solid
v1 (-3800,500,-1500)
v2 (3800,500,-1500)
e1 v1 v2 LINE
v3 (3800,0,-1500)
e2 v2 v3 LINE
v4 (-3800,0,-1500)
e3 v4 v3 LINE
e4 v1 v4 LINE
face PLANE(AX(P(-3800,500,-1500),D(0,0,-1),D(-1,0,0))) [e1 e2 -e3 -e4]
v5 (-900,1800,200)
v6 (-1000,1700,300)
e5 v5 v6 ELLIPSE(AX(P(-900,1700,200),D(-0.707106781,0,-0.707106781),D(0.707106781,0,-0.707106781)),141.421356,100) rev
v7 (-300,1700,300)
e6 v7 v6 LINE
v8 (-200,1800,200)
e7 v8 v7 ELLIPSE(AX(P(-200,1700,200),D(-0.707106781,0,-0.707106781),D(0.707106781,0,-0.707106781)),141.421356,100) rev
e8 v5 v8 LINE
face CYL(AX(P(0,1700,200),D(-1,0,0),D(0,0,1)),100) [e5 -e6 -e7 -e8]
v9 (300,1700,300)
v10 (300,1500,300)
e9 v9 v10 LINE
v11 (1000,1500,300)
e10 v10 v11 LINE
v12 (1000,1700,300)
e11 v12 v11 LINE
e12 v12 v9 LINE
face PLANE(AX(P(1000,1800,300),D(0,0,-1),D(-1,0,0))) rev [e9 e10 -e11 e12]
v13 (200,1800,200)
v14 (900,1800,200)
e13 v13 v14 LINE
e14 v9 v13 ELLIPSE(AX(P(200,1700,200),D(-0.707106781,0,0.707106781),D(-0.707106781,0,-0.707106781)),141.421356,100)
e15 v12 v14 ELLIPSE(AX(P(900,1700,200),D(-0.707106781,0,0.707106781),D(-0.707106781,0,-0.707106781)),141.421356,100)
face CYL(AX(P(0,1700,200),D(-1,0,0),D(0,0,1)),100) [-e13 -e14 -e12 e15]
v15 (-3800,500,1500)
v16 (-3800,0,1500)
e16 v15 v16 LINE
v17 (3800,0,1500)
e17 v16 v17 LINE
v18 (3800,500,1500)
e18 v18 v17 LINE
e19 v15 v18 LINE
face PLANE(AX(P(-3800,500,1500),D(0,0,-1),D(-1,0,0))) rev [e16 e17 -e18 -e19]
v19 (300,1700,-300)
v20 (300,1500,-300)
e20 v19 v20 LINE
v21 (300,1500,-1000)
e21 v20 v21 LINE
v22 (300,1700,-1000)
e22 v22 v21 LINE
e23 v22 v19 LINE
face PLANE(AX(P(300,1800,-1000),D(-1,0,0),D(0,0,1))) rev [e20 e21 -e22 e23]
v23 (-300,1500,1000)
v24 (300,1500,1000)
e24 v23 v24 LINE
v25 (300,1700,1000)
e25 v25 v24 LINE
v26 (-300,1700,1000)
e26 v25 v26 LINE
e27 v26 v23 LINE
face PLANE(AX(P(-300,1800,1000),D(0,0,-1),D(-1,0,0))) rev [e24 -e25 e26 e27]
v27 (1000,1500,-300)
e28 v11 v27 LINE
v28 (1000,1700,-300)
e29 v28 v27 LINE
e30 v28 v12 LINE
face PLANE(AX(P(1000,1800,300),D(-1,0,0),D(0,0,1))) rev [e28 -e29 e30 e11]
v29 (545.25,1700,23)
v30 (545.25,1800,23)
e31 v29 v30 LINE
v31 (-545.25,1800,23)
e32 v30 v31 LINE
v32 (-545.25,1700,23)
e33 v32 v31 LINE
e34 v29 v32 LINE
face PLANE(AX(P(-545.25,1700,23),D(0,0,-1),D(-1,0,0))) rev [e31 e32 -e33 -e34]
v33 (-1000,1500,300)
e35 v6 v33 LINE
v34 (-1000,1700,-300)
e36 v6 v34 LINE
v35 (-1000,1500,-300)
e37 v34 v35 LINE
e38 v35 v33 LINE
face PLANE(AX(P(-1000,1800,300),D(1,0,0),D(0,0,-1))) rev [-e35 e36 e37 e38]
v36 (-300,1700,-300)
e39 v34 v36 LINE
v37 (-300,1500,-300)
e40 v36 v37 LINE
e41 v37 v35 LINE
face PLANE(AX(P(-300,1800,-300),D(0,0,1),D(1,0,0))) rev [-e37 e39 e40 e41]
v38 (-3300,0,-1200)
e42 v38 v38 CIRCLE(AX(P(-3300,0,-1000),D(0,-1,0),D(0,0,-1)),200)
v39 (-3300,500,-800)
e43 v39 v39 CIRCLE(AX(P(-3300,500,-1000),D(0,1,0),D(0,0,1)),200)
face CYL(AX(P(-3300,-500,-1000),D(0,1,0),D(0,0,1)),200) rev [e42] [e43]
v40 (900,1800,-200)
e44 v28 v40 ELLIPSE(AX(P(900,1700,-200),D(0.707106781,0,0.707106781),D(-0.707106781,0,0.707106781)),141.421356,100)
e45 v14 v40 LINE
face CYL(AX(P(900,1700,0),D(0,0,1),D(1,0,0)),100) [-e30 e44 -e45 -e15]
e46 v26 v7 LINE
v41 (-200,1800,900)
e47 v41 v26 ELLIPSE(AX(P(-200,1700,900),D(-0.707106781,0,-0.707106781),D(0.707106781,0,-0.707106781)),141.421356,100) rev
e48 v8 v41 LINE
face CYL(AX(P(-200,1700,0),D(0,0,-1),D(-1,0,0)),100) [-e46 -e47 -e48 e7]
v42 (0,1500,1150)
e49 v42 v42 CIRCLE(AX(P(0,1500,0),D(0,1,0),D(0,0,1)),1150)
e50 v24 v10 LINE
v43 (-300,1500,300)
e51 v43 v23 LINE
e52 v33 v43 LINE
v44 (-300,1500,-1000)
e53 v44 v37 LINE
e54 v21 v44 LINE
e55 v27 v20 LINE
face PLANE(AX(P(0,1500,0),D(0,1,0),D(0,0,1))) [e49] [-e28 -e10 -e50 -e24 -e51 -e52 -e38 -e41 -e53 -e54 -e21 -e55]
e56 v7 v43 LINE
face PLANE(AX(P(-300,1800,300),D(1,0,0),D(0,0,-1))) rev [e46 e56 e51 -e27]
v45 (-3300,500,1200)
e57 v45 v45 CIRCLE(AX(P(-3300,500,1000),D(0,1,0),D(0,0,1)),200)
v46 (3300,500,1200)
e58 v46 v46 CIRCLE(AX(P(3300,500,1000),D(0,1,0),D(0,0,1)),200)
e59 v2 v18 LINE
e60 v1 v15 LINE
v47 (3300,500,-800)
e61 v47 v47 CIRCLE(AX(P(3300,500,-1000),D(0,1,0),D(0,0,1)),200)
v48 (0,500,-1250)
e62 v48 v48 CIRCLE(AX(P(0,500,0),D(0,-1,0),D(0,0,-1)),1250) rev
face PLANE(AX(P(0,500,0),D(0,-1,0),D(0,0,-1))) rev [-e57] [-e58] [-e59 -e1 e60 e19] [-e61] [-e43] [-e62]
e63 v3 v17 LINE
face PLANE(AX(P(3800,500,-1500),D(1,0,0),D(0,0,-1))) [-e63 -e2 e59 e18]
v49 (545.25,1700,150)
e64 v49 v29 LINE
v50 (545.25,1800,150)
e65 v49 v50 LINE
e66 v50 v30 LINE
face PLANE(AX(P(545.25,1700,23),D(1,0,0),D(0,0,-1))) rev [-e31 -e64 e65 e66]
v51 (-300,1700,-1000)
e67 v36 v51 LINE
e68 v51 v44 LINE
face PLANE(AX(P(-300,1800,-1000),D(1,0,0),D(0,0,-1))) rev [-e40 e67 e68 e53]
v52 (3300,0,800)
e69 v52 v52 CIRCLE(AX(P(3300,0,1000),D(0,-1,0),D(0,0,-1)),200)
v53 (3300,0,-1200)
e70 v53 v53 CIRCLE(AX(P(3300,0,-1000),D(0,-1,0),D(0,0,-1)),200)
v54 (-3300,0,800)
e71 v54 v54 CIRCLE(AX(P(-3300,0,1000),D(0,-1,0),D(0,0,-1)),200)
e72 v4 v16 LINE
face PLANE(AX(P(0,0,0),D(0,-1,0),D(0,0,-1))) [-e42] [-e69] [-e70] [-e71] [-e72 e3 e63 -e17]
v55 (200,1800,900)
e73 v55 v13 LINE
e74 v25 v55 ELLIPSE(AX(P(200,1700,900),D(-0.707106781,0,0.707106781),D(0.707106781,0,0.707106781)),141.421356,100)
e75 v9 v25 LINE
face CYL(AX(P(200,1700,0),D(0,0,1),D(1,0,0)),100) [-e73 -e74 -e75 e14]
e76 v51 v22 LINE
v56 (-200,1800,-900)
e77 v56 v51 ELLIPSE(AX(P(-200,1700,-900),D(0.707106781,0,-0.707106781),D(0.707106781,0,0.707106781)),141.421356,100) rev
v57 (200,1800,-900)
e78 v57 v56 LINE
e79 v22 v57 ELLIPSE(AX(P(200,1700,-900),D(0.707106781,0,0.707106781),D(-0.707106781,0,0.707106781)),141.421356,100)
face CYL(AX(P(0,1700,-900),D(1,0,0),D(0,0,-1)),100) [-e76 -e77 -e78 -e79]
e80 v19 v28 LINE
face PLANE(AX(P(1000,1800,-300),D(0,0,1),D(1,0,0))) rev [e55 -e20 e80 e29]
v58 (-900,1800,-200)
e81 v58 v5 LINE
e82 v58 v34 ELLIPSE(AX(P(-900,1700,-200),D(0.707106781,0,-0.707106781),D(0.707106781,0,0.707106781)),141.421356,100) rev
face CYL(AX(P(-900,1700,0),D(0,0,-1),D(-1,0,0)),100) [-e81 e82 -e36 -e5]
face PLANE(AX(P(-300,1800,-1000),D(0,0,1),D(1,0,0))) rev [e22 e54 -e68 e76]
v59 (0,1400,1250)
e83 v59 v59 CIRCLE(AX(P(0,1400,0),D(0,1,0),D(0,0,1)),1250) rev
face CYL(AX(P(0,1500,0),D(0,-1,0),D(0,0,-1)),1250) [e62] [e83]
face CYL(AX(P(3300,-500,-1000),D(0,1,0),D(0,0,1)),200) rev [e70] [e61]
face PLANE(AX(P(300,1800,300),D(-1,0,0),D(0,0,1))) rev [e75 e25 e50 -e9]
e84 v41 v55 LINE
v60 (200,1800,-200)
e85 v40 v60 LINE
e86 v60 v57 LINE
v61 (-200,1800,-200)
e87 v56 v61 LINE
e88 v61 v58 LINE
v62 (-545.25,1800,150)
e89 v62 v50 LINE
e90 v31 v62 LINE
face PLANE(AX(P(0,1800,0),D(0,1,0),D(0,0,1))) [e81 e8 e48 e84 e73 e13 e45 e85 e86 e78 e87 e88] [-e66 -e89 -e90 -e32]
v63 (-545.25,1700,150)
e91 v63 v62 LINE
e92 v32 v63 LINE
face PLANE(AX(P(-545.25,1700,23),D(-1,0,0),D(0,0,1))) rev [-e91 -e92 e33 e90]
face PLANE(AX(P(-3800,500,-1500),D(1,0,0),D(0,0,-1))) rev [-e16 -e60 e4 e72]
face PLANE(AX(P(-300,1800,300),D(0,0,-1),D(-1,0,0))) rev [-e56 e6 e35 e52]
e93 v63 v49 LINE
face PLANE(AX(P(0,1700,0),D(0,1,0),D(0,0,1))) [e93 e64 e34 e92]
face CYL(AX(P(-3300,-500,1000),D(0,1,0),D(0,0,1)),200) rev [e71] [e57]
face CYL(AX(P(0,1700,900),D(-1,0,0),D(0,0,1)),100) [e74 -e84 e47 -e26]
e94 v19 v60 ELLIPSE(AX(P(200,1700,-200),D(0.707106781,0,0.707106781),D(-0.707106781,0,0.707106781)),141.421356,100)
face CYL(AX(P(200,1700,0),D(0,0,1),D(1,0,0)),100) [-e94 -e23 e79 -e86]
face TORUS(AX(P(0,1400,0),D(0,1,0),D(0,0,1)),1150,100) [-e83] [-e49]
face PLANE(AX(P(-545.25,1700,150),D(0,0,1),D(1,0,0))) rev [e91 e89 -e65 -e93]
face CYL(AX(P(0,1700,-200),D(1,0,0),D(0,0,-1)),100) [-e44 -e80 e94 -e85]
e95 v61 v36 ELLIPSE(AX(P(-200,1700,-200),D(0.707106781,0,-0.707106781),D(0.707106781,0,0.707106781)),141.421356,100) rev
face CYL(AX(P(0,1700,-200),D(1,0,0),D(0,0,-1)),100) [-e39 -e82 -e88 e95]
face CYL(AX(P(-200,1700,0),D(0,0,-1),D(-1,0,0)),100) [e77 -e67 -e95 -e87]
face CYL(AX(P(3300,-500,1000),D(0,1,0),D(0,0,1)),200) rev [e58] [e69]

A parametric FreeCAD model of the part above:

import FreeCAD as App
import Part
import Sketcher


def edges_at(feature, points):
    """Names of the edges that pass closest to the given points."""
    edges = feature.Shape.Edges
    near = lambda p: min(range(len(edges)), key=lambda i: edges[i].distToShape(Part.Vertex(*p))[0])
    return sorted({f"Edge{near(p) + 1}" for p in points})

doc = App.newDocument("Part")
body = doc.addObject("PartDesign::Body", "Body")

sketch1 = doc.addObject("Sketcher::SketchObject", "Sketch")
body.addObject(sketch1)
sketch1.AttachmentSupport = (doc.XZ_Plane, [""])
sketch1.MapMode = "FlatFace"
sketch1.addGeometry(Part.LineSegment(App.Vector(-3800, -1500, 0), App.Vector(-3800, 1500, 0)), False)
sketch1.addGeometry(Part.LineSegment(App.Vector(-3800, 1500, 0), App.Vector(3800, 1500, 0)), False)
sketch1.addGeometry(Part.LineSegment(App.Vector(3800, 1500, 0), App.Vector(3800, -1500, 0)), False)
sketch1.addGeometry(Part.LineSegment(App.Vector(3800, -1500, 0), App.Vector(-3800, -1500, 0)), False)
sketch1.addConstraint(Sketcher.Constraint("Coincident", 0, 2, 1, 1))
sketch1.addConstraint(Sketcher.Constraint("Coincident", 1, 2, 2, 1))
sketch1.addConstraint(Sketcher.Constraint("Coincident", 2, 2, 3, 1))
sketch1.addConstraint(Sketcher.Constraint("Coincident", 3, 2, 0, 1))
sketch1.addConstraint(Sketcher.Constraint("Vertical", 0))
sketch1.addConstraint(Sketcher.Constraint("Horizontal", 1))
sketch1.addConstraint(Sketcher.Constraint("Vertical", 2))
sketch1.addConstraint(Sketcher.Constraint("Horizontal", 3))
sketch1.addConstraint(Sketcher.Constraint("Symmetric", 0, 2, 2, 2, -1, 1))
sketch1.addConstraint(Sketcher.Constraint("DistanceX", 1, 1, 1, 2, 7600.0))
sketch1.addConstraint(Sketcher.Constraint("DistanceY", 0, 1, 0, 2, 3000.0))
pad1 = doc.addObject("PartDesign::Pad", "Pad")
body.addObject(pad1)
pad1.Profile = sketch1
pad1.Length = 500
pad1.Reversed = True

sketch2 = doc.addObject("Sketcher::SketchObject", "Sketch001")
body.addObject(sketch2)
sketch2.AttachmentSupport = (doc.XZ_Plane, [""])
sketch2.MapMode = "FlatFace"
sketch2.AttachmentOffset = App.Placement(App.Vector(0, 0, -500), App.Rotation())
sketch2.addGeometry(Part.Circle(App.Vector(-3300, 1000, 0), App.Vector(0, 0, 1), 200), False)
sketch2.addGeometry(Part.Circle(App.Vector(-3300, -1000, 0), App.Vector(0, 0, 1), 200), False)
sketch2.addGeometry(Part.Circle(App.Vector(3300, -1000, 0), App.Vector(0, 0, 1), 200), False)
sketch2.addGeometry(Part.Circle(App.Vector(3300, 1000, 0), App.Vector(0, 0, 1), 200), False)
sketch2.addConstraint(Sketcher.Constraint("Equal", 0, 1))
sketch2.addConstraint(Sketcher.Constraint("Equal", 1, 2))
sketch2.addConstraint(Sketcher.Constraint("Equal", 2, 3))
sketch2.addConstraint(Sketcher.Constraint("Symmetric", 0, 3, 2, 3, -1, 1))
sketch2.addConstraint(Sketcher.Constraint("Symmetric", 1, 3, 3, 3, -1, 1))
sketch2.addConstraint(Sketcher.Constraint("Symmetric", 1, 3, 2, 3, -2))
sketch2.addConstraint(Sketcher.Constraint("Diameter", 0, 400.0))
sketch2.addConstraint(Sketcher.Constraint("DistanceX", 0, 3, -1, 1, 3300.0))
sketch2.addConstraint(Sketcher.Constraint("DistanceY", -1, 1, 0, 3, 1000.0))
pocket1 = doc.addObject("PartDesign::Pocket", "Pocket")
body.addObject(pocket1)
pocket1.Profile = sketch2
pocket1.Length = 1000
pocket1.Reversed = True

sketch3 = doc.addObject("Sketcher::SketchObject", "Sketch002")
body.addObject(sketch3)
sketch3.AttachmentSupport = (doc.XZ_Plane, [""])
sketch3.MapMode = "FlatFace"
sketch3.AttachmentOffset = App.Placement(App.Vector(0, 0, -500), App.Rotation())
sketch3.addGeometry(Part.Circle(App.Vector(0, 0, 0), App.Vector(0, 0, 1), 1250), False)
sketch3.addConstraint(Sketcher.Constraint("Coincident", 0, 3, -1, 1))
sketch3.addConstraint(Sketcher.Constraint("Diameter", 0, 2500.0))
pad2 = doc.addObject("PartDesign::Pad", "Pad001")
body.addObject(pad2)
pad2.Profile = sketch3
pad2.Length = 1000
pad2.Reversed = True

sketch4 = doc.addObject("Sketcher::SketchObject", "Sketch003")
body.addObject(sketch4)
sketch4.AttachmentSupport = (doc.XZ_Plane, [""])
sketch4.MapMode = "FlatFace"
sketch4.AttachmentOffset = App.Placement(App.Vector(0, 0, -1500), App.Rotation())
sketch4.addGeometry(Part.LineSegment(App.Vector(-300, 300, 0), App.Vector(-300, 1000, 0)), False)
sketch4.addGeometry(Part.LineSegment(App.Vector(-300, 1000, 0), App.Vector(300, 1000, 0)), False)
sketch4.addGeometry(Part.LineSegment(App.Vector(300, 1000, 0), App.Vector(300, 300, 0)), False)
sketch4.addGeometry(Part.LineSegment(App.Vector(300, 300, 0), App.Vector(1000, 300, 0)), False)
sketch4.addGeometry(Part.LineSegment(App.Vector(1000, 300, 0), App.Vector(1000, -300, 0)), False)
sketch4.addGeometry(Part.LineSegment(App.Vector(1000, -300, 0), App.Vector(300, -300, 0)), False)
sketch4.addGeometry(Part.LineSegment(App.Vector(300, -300, 0), App.Vector(300, -1000, 0)), False)
sketch4.addGeometry(Part.LineSegment(App.Vector(300, -1000, 0), App.Vector(-300, -1000, 0)), False)
sketch4.addGeometry(Part.LineSegment(App.Vector(-300, -1000, 0), App.Vector(-300, -300, 0)), False)
sketch4.addGeometry(Part.LineSegment(App.Vector(-300, -300, 0), App.Vector(-1000, -300, 0)), False)
sketch4.addGeometry(Part.LineSegment(App.Vector(-1000, -300, 0), App.Vector(-1000, 300, 0)), False)
sketch4.addGeometry(Part.LineSegment(App.Vector(-1000, 300, 0), App.Vector(-300, 300, 0)), False)
sketch4.addConstraint(Sketcher.Constraint("Coincident", 0, 2, 1, 1))
sketch4.addConstraint(Sketcher.Constraint("Coincident", 1, 2, 2, 1))
sketch4.addConstraint(Sketcher.Constraint("Coincident", 2, 2, 3, 1))
sketch4.addConstraint(Sketcher.Constraint("Coincident", 3, 2, 4, 1))
sketch4.addConstraint(Sketcher.Constraint("Coincident", 4, 2, 5, 1))
sketch4.addConstraint(Sketcher.Constraint("Coincident", 5, 2, 6, 1))
sketch4.addConstraint(Sketcher.Constraint("Coincident", 6, 2, 7, 1))
sketch4.addConstraint(Sketcher.Constraint("Coincident", 7, 2, 8, 1))
sketch4.addConstraint(Sketcher.Constraint("Coincident", 8, 2, 9, 1))
sketch4.addConstraint(Sketcher.Constraint("Coincident", 9, 2, 10, 1))
sketch4.addConstraint(Sketcher.Constraint("Coincident", 10, 2, 11, 1))
sketch4.addConstraint(Sketcher.Constraint("Coincident", 11, 2, 0, 1))
sketch4.addConstraint(Sketcher.Constraint("Vertical", 0))
sketch4.addConstraint(Sketcher.Constraint("Horizontal", 1))
sketch4.addConstraint(Sketcher.Constraint("Vertical", 2))
sketch4.addConstraint(Sketcher.Constraint("Horizontal", 3))
sketch4.addConstraint(Sketcher.Constraint("Vertical", 4))
sketch4.addConstraint(Sketcher.Constraint("Horizontal", 5))
sketch4.addConstraint(Sketcher.Constraint("Vertical", 6))
sketch4.addConstraint(Sketcher.Constraint("Horizontal", 7))
sketch4.addConstraint(Sketcher.Constraint("Vertical", 8))
sketch4.addConstraint(Sketcher.Constraint("Horizontal", 9))
sketch4.addConstraint(Sketcher.Constraint("Vertical", 10))
sketch4.addConstraint(Sketcher.Constraint("Horizontal", 11))
sketch4.addConstraint(Sketcher.Constraint("Symmetric", 0, 2, 6, 2, -1, 1))
sketch4.addConstraint(Sketcher.Constraint("Symmetric", 2, 2, 8, 2, -1, 1))
sketch4.addConstraint(Sketcher.Constraint("Symmetric", 4, 2, 10, 2, -1, 1))
sketch4.addConstraint(Sketcher.Constraint("Symmetric", 5, 2, 8, 2, -2))
sketch4.addConstraint(Sketcher.Constraint("Equal", 11, 0))
sketch4.addConstraint(Sketcher.Constraint("Equal", 7, 4))
sketch4.addConstraint(Sketcher.Constraint("DistanceX", 1, 1, 1, 2, 600.0))
sketch4.addConstraint(Sketcher.Constraint("DistanceX", 3, 1, 3, 2, 700.0))
pad3 = doc.addObject("PartDesign::Pad", "Pad002")
body.addObject(pad3)
pad3.Profile = sketch4
pad3.Length = 300
pad3.Reversed = True
doc.recompute()

fillet = doc.addObject("PartDesign::Fillet", "Fillet")
body.addObject(fillet)
fillet.Base = (pad3, edges_at(pad3, [
    (300, 1800, 650),
    (650, 1800, 300),
    (1000, 1800, 0),
    (650, 1800, -300),
    (300, 1800, -650),
    (0, 1800, -1000),
    (-300, 1800, -650),
    (-650, 1800, -300),
    (-1000, 1800, 0),
    (-650, 1800, 300),
    (-300, 1800, 650),
    (0, 1800, 1000),
]))
fillet.Radius = 100
doc.recompute()

fillet2 = doc.addObject("PartDesign::Fillet", "Fillet001")
body.addObject(fillet2)
fillet2.Base = (fillet, edges_at(fillet, [(0, 1500, 1250)]))
fillet2.Radius = 100

sketch5 = doc.addObject("Sketcher::SketchObject", "Sketch004")
body.addObject(sketch5)
sketch5.AttachmentSupport = (doc.XZ_Plane, [""])
sketch5.MapMode = "FlatFace"
sketch5.AttachmentOffset = App.Placement(App.Vector(0, 0, -1800), App.Rotation())
sketch5.addGeometry(Part.LineSegment(App.Vector(-545, 23, 0), App.Vector(-545, 150, 0)), False)
sketch5.addGeometry(Part.LineSegment(App.Vector(-545, 150, 0), App.Vector(545, 150, 0)), False)
sketch5.addGeometry(Part.LineSegment(App.Vector(545, 150, 0), App.Vector(545, 23, 0)), False)
sketch5.addGeometry(Part.LineSegment(App.Vector(545, 23, 0), App.Vector(-545, 23, 0)), False)
sketch5.addConstraint(Sketcher.Constraint("Coincident", 0, 2, 1, 1))
sketch5.addConstraint(Sketcher.Constraint("Coincident", 1, 2, 2, 1))
sketch5.addConstraint(Sketcher.Constraint("Coincident", 2, 2, 3, 1))
sketch5.addConstraint(Sketcher.Constraint("Coincident", 3, 2, 0, 1))
sketch5.addConstraint(Sketcher.Constraint("Vertical", 0))
sketch5.addConstraint(Sketcher.Constraint("Horizontal", 1))
sketch5.addConstraint(Sketcher.Constraint("Vertical", 2))
sketch5.addConstraint(Sketcher.Constraint("Horizontal", 3))
sketch5.addConstraint(Sketcher.Constraint("DistanceY", 0, 1, 0, 2, 127.0))
sketch5.addConstraint(Sketcher.Constraint("DistanceX", 1, 1, 1, 2, 1090.5))
sketch5.addConstraint(Sketcher.Constraint("DistanceY", -1, 1, 0, 2, 150.0))
sketch5.addConstraint(Sketcher.Constraint("DistanceX", 0, 2, -1, 1, 545.25))
pocket2 = doc.addObject("PartDesign::Pocket", "Pocket001")
body.addObject(pocket2)
pocket2.Profile = sketch5
pocket2.Length = 100
pocket2.Reversed = True

doc.recompute()
